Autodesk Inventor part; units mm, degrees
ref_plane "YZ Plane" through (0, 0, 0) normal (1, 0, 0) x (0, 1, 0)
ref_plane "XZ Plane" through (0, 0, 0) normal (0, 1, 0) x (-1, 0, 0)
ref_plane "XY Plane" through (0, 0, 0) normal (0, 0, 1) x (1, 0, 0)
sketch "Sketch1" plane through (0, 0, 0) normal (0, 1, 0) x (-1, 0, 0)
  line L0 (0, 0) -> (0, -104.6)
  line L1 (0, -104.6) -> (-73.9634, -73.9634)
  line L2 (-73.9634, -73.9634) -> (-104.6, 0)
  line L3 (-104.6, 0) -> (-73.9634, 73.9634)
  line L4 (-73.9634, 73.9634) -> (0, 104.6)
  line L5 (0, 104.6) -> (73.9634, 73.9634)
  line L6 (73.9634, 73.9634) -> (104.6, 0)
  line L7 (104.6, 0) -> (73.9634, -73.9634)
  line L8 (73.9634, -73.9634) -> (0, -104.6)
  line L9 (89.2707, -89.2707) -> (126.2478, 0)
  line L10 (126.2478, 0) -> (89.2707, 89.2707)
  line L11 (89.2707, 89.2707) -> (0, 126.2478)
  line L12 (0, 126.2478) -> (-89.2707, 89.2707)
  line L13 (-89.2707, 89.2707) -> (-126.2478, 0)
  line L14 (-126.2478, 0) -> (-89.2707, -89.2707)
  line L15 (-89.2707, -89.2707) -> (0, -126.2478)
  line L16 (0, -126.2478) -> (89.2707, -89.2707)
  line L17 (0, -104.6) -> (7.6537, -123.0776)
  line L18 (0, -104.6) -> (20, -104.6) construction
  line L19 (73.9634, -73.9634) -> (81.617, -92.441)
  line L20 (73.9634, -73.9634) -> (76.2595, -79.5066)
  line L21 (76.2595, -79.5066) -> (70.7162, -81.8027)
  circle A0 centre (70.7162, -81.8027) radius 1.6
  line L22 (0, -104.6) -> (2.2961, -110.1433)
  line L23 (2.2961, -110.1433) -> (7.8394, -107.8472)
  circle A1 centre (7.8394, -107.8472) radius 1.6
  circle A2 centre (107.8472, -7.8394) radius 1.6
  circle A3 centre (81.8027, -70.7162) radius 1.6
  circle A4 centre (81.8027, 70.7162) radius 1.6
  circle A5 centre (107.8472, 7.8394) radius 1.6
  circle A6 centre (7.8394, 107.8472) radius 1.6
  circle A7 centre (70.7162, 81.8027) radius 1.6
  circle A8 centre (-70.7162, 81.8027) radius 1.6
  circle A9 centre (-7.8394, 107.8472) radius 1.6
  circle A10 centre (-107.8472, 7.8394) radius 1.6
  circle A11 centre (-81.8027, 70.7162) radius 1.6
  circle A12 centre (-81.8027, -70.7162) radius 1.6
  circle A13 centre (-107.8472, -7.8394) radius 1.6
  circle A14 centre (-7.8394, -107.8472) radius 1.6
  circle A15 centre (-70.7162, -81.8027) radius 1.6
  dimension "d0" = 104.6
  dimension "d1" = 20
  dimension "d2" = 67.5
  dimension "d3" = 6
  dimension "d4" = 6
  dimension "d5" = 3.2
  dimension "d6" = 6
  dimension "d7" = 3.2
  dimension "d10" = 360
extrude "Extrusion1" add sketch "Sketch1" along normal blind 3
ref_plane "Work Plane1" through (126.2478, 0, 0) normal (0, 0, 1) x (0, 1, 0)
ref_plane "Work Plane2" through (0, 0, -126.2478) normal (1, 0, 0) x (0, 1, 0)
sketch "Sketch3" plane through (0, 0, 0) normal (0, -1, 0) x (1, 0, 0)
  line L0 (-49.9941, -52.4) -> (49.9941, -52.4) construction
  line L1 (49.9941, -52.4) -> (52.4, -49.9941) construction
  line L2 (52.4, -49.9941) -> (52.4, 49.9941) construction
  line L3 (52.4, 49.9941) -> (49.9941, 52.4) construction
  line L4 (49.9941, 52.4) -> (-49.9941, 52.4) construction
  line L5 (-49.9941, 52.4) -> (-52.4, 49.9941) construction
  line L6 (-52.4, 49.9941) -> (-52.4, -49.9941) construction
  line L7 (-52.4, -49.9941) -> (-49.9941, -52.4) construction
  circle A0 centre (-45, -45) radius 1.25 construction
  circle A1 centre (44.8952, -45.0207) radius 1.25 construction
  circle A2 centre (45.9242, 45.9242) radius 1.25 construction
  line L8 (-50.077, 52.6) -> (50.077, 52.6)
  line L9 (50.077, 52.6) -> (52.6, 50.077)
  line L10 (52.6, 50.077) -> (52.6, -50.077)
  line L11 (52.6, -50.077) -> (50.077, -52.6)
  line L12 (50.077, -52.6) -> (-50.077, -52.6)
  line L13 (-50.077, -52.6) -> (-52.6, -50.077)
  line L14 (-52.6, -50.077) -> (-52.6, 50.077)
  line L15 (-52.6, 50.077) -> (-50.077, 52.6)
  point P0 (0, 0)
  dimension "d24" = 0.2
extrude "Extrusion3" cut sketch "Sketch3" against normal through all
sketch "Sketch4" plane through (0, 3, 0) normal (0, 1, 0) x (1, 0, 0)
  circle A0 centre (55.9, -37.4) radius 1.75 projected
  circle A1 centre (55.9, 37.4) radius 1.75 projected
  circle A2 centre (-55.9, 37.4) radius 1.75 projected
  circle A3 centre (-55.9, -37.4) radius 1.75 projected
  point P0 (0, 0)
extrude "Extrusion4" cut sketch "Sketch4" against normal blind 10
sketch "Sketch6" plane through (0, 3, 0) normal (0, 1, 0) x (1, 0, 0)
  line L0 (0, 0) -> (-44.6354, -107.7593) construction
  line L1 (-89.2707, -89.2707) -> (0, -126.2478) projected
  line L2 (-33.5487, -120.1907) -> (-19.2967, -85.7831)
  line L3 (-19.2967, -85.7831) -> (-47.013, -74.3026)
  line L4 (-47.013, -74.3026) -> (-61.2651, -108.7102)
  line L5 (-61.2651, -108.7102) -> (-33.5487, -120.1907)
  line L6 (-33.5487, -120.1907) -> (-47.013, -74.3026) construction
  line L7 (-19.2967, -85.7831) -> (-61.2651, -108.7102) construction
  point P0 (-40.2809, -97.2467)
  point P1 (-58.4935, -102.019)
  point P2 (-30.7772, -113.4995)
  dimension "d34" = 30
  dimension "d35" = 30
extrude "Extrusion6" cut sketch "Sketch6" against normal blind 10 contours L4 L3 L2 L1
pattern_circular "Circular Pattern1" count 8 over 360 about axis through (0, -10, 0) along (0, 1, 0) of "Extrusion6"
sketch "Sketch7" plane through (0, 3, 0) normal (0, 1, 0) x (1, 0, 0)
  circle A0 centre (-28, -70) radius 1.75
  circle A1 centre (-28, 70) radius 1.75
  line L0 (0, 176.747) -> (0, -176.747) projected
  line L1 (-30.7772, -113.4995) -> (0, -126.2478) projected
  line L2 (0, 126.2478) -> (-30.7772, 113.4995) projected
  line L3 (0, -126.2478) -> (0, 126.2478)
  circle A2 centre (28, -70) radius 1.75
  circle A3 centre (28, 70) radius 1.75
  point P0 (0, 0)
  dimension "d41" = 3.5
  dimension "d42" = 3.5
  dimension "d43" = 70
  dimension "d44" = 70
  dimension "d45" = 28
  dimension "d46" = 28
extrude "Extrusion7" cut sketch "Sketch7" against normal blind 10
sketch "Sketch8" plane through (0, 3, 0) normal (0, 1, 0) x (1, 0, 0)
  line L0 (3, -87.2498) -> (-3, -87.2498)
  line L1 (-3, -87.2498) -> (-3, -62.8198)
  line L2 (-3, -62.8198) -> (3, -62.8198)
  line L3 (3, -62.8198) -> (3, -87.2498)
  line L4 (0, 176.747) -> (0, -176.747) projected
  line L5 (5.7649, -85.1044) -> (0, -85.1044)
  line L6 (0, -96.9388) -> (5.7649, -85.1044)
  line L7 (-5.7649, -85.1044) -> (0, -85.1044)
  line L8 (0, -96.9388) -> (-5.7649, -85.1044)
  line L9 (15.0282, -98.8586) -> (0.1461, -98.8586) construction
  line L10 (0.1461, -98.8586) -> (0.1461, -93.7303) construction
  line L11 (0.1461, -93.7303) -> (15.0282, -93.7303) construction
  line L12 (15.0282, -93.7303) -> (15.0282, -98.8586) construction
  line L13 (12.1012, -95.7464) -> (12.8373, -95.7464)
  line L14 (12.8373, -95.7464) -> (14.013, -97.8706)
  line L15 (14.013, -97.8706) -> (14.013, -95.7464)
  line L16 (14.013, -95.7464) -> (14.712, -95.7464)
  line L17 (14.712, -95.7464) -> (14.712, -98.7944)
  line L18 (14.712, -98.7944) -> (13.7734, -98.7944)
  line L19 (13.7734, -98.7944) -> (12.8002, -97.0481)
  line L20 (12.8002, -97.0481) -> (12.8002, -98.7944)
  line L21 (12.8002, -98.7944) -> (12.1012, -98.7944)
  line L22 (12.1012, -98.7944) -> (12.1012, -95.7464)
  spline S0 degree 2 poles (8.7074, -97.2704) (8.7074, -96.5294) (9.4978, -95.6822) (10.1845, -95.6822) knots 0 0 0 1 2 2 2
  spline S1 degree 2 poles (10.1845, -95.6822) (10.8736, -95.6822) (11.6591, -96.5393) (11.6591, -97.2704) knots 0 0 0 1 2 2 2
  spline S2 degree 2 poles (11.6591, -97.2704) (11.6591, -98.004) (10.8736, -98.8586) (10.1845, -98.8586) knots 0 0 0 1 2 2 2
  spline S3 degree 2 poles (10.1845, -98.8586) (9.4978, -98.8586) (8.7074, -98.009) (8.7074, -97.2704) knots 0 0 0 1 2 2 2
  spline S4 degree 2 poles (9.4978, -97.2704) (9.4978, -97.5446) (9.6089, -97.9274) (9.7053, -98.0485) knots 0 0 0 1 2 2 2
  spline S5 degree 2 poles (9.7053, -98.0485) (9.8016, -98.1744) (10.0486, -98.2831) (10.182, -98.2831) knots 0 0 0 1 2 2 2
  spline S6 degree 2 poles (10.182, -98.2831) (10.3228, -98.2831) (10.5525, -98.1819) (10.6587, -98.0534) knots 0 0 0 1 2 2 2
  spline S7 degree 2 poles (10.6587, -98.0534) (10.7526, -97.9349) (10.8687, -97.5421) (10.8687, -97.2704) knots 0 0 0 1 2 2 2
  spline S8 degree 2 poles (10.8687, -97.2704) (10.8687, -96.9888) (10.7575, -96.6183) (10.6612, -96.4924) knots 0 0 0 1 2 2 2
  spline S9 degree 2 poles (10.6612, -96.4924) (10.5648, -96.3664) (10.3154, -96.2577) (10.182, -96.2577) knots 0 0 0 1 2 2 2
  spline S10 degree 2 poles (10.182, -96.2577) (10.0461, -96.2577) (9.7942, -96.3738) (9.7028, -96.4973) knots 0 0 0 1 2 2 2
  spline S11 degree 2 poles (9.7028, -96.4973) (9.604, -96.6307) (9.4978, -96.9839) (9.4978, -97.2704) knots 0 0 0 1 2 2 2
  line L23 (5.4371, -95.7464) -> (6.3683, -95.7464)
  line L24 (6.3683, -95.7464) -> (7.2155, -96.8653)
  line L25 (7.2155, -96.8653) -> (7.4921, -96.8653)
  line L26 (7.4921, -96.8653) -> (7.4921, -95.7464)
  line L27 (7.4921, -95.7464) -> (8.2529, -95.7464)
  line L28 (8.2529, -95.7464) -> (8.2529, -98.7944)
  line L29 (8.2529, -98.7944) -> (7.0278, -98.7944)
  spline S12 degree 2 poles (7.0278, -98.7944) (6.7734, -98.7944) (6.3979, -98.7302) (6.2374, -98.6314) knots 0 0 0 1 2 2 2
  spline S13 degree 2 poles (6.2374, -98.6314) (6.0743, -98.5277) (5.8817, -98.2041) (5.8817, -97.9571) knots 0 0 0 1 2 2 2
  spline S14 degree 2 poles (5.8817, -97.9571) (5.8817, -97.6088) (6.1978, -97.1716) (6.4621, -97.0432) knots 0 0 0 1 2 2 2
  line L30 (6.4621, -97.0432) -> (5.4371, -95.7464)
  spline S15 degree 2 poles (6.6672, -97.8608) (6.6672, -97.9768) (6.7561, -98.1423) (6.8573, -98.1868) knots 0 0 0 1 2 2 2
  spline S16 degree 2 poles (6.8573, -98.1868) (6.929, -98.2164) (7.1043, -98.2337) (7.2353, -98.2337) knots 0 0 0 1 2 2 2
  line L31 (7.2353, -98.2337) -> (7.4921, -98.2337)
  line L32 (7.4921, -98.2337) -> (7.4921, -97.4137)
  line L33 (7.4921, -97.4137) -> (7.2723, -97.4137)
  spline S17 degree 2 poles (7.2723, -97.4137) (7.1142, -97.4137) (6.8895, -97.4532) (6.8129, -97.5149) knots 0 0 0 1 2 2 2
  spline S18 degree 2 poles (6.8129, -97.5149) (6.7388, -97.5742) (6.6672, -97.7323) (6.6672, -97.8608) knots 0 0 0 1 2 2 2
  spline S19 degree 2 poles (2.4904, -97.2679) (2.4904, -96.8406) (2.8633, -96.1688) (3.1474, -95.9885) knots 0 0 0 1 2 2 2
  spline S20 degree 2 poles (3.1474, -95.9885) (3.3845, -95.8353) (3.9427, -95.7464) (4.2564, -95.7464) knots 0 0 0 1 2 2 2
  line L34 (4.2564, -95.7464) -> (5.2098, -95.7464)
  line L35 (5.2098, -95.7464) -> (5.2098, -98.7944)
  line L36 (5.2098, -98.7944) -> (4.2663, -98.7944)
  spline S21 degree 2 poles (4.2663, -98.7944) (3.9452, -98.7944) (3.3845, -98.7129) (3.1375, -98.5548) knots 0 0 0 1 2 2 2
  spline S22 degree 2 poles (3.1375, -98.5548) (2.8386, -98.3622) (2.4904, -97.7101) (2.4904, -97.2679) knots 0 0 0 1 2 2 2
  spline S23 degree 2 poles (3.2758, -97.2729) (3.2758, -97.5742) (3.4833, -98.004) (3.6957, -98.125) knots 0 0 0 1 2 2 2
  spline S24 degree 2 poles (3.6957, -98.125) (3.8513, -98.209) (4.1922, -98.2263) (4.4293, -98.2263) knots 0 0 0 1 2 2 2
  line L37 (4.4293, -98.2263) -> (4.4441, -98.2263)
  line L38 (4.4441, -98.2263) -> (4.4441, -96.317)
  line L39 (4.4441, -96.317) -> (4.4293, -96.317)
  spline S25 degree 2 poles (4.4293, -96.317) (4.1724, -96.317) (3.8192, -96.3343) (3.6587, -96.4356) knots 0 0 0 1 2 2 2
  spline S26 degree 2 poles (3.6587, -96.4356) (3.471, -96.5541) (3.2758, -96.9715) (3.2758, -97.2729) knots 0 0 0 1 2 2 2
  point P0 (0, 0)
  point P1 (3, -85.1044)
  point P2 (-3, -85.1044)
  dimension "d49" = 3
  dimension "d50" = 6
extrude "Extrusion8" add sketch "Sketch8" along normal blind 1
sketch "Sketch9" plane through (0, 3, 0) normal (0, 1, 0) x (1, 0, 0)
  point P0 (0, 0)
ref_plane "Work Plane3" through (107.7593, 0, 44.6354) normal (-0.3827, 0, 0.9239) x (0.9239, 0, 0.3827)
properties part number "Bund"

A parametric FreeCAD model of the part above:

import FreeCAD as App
import Part
import Sketcher
Q = App.Units.Quantity

doc = App.newDocument("Part")
body = doc.addObject("PartDesign::Body", "Body")

sketch1 = body.newObject("Sketcher::SketchObject", "Sketch")
sketch1.AttachmentSupport = (doc.getObject("XZ_Plane"), [""])
sketch1.MapMode = "FlatFace"
sketch1.addGeometry([
    Part.LineSegment(App.Vector(0, -126.2, 0), App.Vector(-89.3, -89.3, 0)),
    Part.LineSegment(App.Vector(-89.3, -89.3, 0), App.Vector(-126.2, 0, 0)),
    Part.LineSegment(App.Vector(-126.2, 0, 0), App.Vector(-89.3, 89.3, 0)),
    Part.LineSegment(App.Vector(-89.3, 89.3, 0), App.Vector(0, 126.2, 0)),
    Part.LineSegment(App.Vector(0, 126.2, 0), App.Vector(89.3, 89.3, 0)),
    Part.LineSegment(App.Vector(89.3, 89.3, 0), App.Vector(126.2, 0, 0)),
    Part.LineSegment(App.Vector(126.2, 0, 0), App.Vector(89.3, -89.3, 0)),
    Part.LineSegment(App.Vector(89.3, -89.3, 0), App.Vector(0, -126.2, 0)),
    Part.Circle(App.Vector(70.7, -81.8, 0), App.Vector(0, 0, 1), 1.6),
    Part.Circle(App.Vector(81.8, -70.7, 0), App.Vector(0, 0, 1), 1.6),
    Part.Circle(App.Vector(7.8, -107.8, 0), App.Vector(0, 0, 1), 1.6),
    Part.Circle(App.Vector(107.8, -7.8, 0), App.Vector(0, 0, 1), 1.6),
    Part.Circle(App.Vector(-81.8, -70.7, 0), App.Vector(0, 0, 1), 1.6),
    Part.Circle(App.Vector(-107.8, -7.8, 0), App.Vector(0, 0, 1), 1.6),
    Part.Circle(App.Vector(107.8, 7.8, 0), App.Vector(0, 0, 1), 1.6),
    Part.Circle(App.Vector(81.8, 70.7, 0), App.Vector(0, 0, 1), 1.6),
    Part.Circle(App.Vector(70.7, 81.8, 0), App.Vector(0, 0, 1), 1.6),
    Part.Circle(App.Vector(7.8, 107.8, 0), App.Vector(0, 0, 1), 1.6),
    Part.Circle(App.Vector(-107.8, 7.8, 0), App.Vector(0, 0, 1), 1.6),
    Part.Circle(App.Vector(-7.8, 107.8, 0), App.Vector(0, 0, 1), 1.6),
    Part.Circle(App.Vector(-81.8, 70.7, 0), App.Vector(0, 0, 1), 1.6),
    Part.Circle(App.Vector(-70.7, 81.8, 0), App.Vector(0, 0, 1), 1.6),
    Part.Circle(App.Vector(-70.7, -81.8, 0), App.Vector(0, 0, 1), 1.6),
    Part.Circle(App.Vector(-7.8, -107.8, 0), App.Vector(0, 0, 1), 1.6),
], False)
sketch1.addConstraint([
    Sketcher.Constraint("Coincident", 0, 2, 1, 1),
    Sketcher.Constraint("Coincident", 1, 2, 2, 1),
    Sketcher.Constraint("Coincident", 2, 2, 3, 1),
    Sketcher.Constraint("Coincident", 3, 2, 4, 1),
    Sketcher.Constraint("Coincident", 4, 2, 5, 1),
    Sketcher.Constraint("Coincident", 5, 2, 6, 1),
    Sketcher.Constraint("Coincident", 6, 2, 7, 1),
    Sketcher.Constraint("Coincident", 7, 2, 0, 1),
    Sketcher.Constraint("Equal", 8, 9),
    Sketcher.Constraint("Equal", 9, 10),
    Sketcher.Constraint("Equal", 10, 11),
    Sketcher.Constraint("Equal", 11, 12),
    Sketcher.Constraint("Equal", 12, 13),
    Sketcher.Constraint("Equal", 13, 14),
    Sketcher.Constraint("Equal", 14, 15),
    Sketcher.Constraint("Equal", 15, 16),
    Sketcher.Constraint("Equal", 16, 17),
    Sketcher.Constraint("Equal", 17, 18),
    Sketcher.Constraint("Equal", 18, 19),
    Sketcher.Constraint("Equal", 19, 20),
    Sketcher.Constraint("Equal", 20, 21),
    Sketcher.Constraint("Equal", 21, 22),
    Sketcher.Constraint("Equal", 22, 23),
    Sketcher.Constraint("Symmetric", 13, 3, 14, 3, -1, 1),
    Sketcher.Constraint("Symmetric", 12, 3, 15, 3, -1, 1),
    Sketcher.Constraint("Symmetric", 11, 3, 18, 3, -1, 1),
    Sketcher.Constraint("Symmetric", 10, 3, 19, 3, -1, 1),
    Sketcher.Constraint("Symmetric", 9, 3, 20, 3, -1, 1),
    Sketcher.Constraint("Symmetric", 8, 3, 21, 3, -1, 1),
    Sketcher.Constraint("Symmetric", 16, 3, 22, 3, -1, 1),
    Sketcher.Constraint("Symmetric", 17, 3, 23, 3, -1, 1),
    Sketcher.Constraint("Symmetric", 0, 2, 4, 2, -1, 1),
    Sketcher.Constraint("Symmetric", 1, 2, 5, 2, -1, 1),
    Sketcher.Constraint("Symmetric", 2, 2, 6, 2, -1, 1),
    Sketcher.Constraint("Symmetric", 3, 2, 7, 2, -1, 1),
    Sketcher.Constraint("Symmetric", 9, 3, 12, 3, -2),
    Sketcher.Constraint("Symmetric", 11, 3, 13, 3, -2),
    Sketcher.Constraint("Symmetric", 17, 3, 19, 3, -2),
    Sketcher.Constraint("Symmetric", 16, 3, 21, 3, -2),
    Sketcher.Constraint("Symmetric", 2, 2, 4, 2, -2),
    Sketcher.Constraint("PointOnObject", 1, 2, -1),
    Sketcher.Constraint("PointOnObject", 3, 2, -2),
    Sketcher.Constraint("Perpendicular", 0, 2),
    Sketcher.Constraint("Equal", 0, 1),
    Sketcher.Constraint("Diameter", 8, 3.2),
    Sketcher.Constraint("Angle", 2, Q("67.5 deg")),
    Sketcher.Constraint("DistanceX", 12, 3, 11, 3, 189.65),
    Sketcher.Constraint("DistanceX", 0, 2, 10, 3, 97.11),
    Sketcher.Constraint("Distance", 0, 96.626),
    Sketcher.Constraint("DistanceY", 10, 3, 9, 3, 37.131),
    Sketcher.Constraint("DistanceX", 8, 3, 11, 3, 37.131),
    Sketcher.Constraint("DistanceX", 12, 3, 10, 3, 89.642),
    Sketcher.Constraint("DistanceY", 8, 3, 14, 3, 89.642),
    Sketcher.Constraint("DistanceY", 8, 3, 15, 3, 152.519),
    Sketcher.Constraint("DistanceY", 0, 2, 22, 3, 7.468),
])
pad1 = body.newObject("PartDesign::Pad", "Pad")
pad1.Profile = sketch1
pad1.Length = 3
pad1.Reversed = True

sketch2 = body.newObject("Sketcher::SketchObject", "Sketch001")
sketch2.AttachmentSupport = (doc.getObject("XZ_Plane"), [""])
sketch2.MapMode = "FlatFace"
sketch2.addGeometry([
    Part.LineSegment(App.Vector(50.1, 52.6, 0), App.Vector(-50.1, 52.6, 0)),
    Part.LineSegment(App.Vector(-50.1, 52.6, 0), App.Vector(-52.6, 50.1, 0)),
    Part.LineSegment(App.Vector(-52.6, 50.1, 0), App.Vector(-52.6, -50.1, 0)),
    Part.LineSegment(App.Vector(-52.6, -50.1, 0), App.Vector(-50.1, -52.6, 0)),
    Part.LineSegment(App.Vector(-50.1, -52.6, 0), App.Vector(50.1, -52.6, 0)),
    Part.LineSegment(App.Vector(50.1, -52.6, 0), App.Vector(52.6, -50.1, 0)),
    Part.LineSegment(App.Vector(52.6, -50.1, 0), App.Vector(52.6, 50.1, 0)),
    Part.LineSegment(App.Vector(52.6, 50.1, 0), App.Vector(50.1, 52.6, 0)),
], False)
sketch2.addConstraint([
    Sketcher.Constraint("Coincident", 0, 2, 1, 1),
    Sketcher.Constraint("Coincident", 1, 2, 2, 1),
    Sketcher.Constraint("Coincident", 2, 2, 3, 1),
    Sketcher.Constraint("Coincident", 3, 2, 4, 1),
    Sketcher.Constraint("Coincident", 4, 2, 5, 1),
    Sketcher.Constraint("Coincident", 5, 2, 6, 1),
    Sketcher.Constraint("Coincident", 6, 2, 7, 1),
    Sketcher.Constraint("Coincident", 7, 2, 0, 1),
    Sketcher.Constraint("Horizontal", 0),
    Sketcher.Constraint("Vertical", 2),
    Sketcher.Constraint("Horizontal", 4),
    Sketcher.Constraint("Vertical", 6),
    Sketcher.Constraint("Symmetric", 0, 2, 4, 2, -1, 1),
    Sketcher.Constraint("Symmetric", 1, 2, 5, 2, -1, 1),
    Sketcher.Constraint("Perpendicular", 1, 3),
    Sketcher.Constraint("Perpendicular", 5, 7),
    Sketcher.Constraint("Horizontal", 2, 2, 5, 2),
    Sketcher.Constraint("Horizontal", 1, 2, 6, 2),
    Sketcher.Constraint("Vertical", 0, 2, 3, 2),
    Sketcher.Constraint("Equal", 4, 2),
    Sketcher.Constraint("DistanceY", -1, 1, 0, 2, 52.6),
    Sketcher.Constraint("DistanceX", 0, 2, 0, 1, 100.154),
])
pocket1 = body.newObject("PartDesign::Pocket", "Pocket")
pocket1.Profile = sketch2
pocket1.Type = "ThroughAll"

sketch3 = body.newObject("Sketcher::SketchObject", "Sketch002")
sketch3.AttachmentSupport = (doc.getObject("XZ_Plane"), [""])
sketch3.MapMode = "FlatFace"
sketch3.AttachmentOffset = App.Placement(App.Vector(0, 0, -3), App.Rotation())
sketch3.addGeometry([
    Part.Circle(App.Vector(55.9, 37.4, 0), App.Vector(0, 0, 1), 1.8),
    Part.Circle(App.Vector(55.9, -37.4, 0), App.Vector(0, 0, 1), 1.8),
    Part.Circle(App.Vector(-55.9, -37.4, 0), App.Vector(0, 0, 1), 1.8),
    Part.Circle(App.Vector(-55.9, 37.4, 0), App.Vector(0, 0, 1), 1.8),
], False)
sketch3.addConstraint([
    Sketcher.Constraint("Equal", 0, 1),
    Sketcher.Constraint("Equal", 1, 2),
    Sketcher.Constraint("Equal", 2, 3),
    Sketcher.Constraint("Symmetric", 0, 3, 2, 3, -1, 1),
    Sketcher.Constraint("Symmetric", 1, 3, 3, 3, -1, 1),
    Sketcher.Constraint("Symmetric", 1, 3, 2, 3, -2),
    Sketcher.Constraint("Diameter", 0, 3.5),
    Sketcher.Constraint("DistanceX", -1, 1, 0, 3, 55.9),
    Sketcher.Constraint("DistanceY", -1, 1, 0, 3, 37.4),
])
pocket2 = body.newObject("PartDesign::Pocket", "Pocket001")
pocket2.Profile = sketch3
pocket2.Length = 10
pocket2.Reversed = True

sketch4 = body.newObject("Sketcher::SketchObject", "Sketch003")
sketch4.AttachmentSupport = (doc.getObject("XZ_Plane"), [""])
sketch4.MapMode = "FlatFace"
sketch4.AttachmentOffset = App.Placement(App.Vector(0, 0, -3), App.Rotation())
sketch4.addGeometry([
    Part.LineSegment(App.Vector(-47, 74, 0), App.Vector(-58, 102, 0)),
    Part.LineSegment(App.Vector(-58, 102, 0), App.Vector(-31, 113, 0)),
    Part.LineSegment(App.Vector(-31, 113, 0), App.Vector(-19, 86, 0)),
    Part.LineSegment(App.Vector(-19, 86, 0), App.Vector(-47, 74, 0)),
], False)
sketch4.addConstraint([
    Sketcher.Constraint("Coincident", 0, 2, 1, 1),
    Sketcher.Constraint("Coincident", 1, 2, 2, 1),
    Sketcher.Constraint("Coincident", 2, 2, 3, 1),
    Sketcher.Constraint("Coincident", 3, 2, 0, 1),
    Sketcher.Constraint("Perpendicular", 0, 1),
    Sketcher.Constraint("Perpendicular", 1, 2),
    Sketcher.Constraint("Perpendicular", 2, 3),
    Sketcher.Constraint("Equal", 0, 1),
    Sketcher.Constraint("Distance", 0, 30.0),
    Sketcher.Constraint("Angle", 0, Q("112.5 deg")),
    Sketcher.Constraint("DistanceY", -1, 1, 0, 2, 102.019),
    Sketcher.Constraint("DistanceX", 3, 2, -1, 1, 47.013),
])
pocket3 = body.newObject("PartDesign::Pocket", "Pocket002")
pocket3.Profile = sketch4
pocket3.Length = 10
pocket3.Reversed = True
doc.recompute()

polarpattern = body.newObject("PartDesign::PolarPattern", "PolarPattern")
polarpattern.Originals = [pocket3]
polarpattern.Axis = (doc.getObject("Y_Axis"), [""])
polarpattern.Angle = 360
polarpattern.Occurrences = 8
body.Tip = polarpattern

sketch5 = body.newObject("Sketcher::SketchObject", "Sketch004")
sketch5.AttachmentSupport = (doc.getObject("XZ_Plane"), [""])
sketch5.MapMode = "FlatFace"
sketch5.AttachmentOffset = App.Placement(App.Vector(0, 0, -3), App.Rotation())
sketch5.addGeometry([
    Part.Circle(App.Vector(-28, 70, 0), App.Vector(0, 0, 1), 1.8),
    Part.Circle(App.Vector(-28, -70, 0), App.Vector(0, 0, 1), 1.8),
    Part.Circle(App.Vector(28, 70, 0), App.Vector(0, 0, 1), 1.8),
    Part.Circle(App.Vector(28, -70, 0), App.Vector(0, 0, 1), 1.8),
], False)
sketch5.addConstraint([
    Sketcher.Constraint("Equal", 0, 1),
    Sketcher.Constraint("Equal", 1, 2),
    Sketcher.Constraint("Equal", 2, 3),
    Sketcher.Constraint("Symmetric", 1, 3, 2, 3, -1, 1),
    Sketcher.Constraint("Symmetric", 0, 3, 3, 3, -1, 1),
    Sketcher.Constraint("Symmetric", 0, 3, 2, 3, -2),
    Sketcher.Constraint("Diameter", 0, 3.5),
    Sketcher.Constraint("DistanceX", 0, 3, -1, 1, 28.0),
    Sketcher.Constraint("DistanceY", -1, 1, 0, 3, 70.0),
])
pocket4 = body.newObject("PartDesign::Pocket", "Pocket003")
pocket4.Profile = sketch5
pocket4.Length = 10
pocket4.Reversed = True

sketch6 = body.newObject("Sketcher::SketchObject", "Sketch005")
sketch6.AttachmentSupport = (doc.getObject("XZ_Plane"), [""])
sketch6.MapMode = "FlatFace"
sketch6.AttachmentOffset = App.Placement(App.Vector(0, 0, -3), App.Rotation())
sketch6.addGeometry([
    Part.LineSegment(App.Vector(5.7649, 85.1044, 0), App.Vector(3, 85.1044, 0)),
    Part.LineSegment(App.Vector(3, 85.1044, 0), App.Vector(3, 62.8198, 0)),
    Part.LineSegment(App.Vector(3, 62.8198, 0), App.Vector(-3, 62.8198, 0)),
    Part.LineSegment(App.Vector(-3, 62.8198, 0), App.Vector(-3, 85.1044, 0)),
    Part.LineSegment(App.Vector(-3, 85.1044, 0), App.Vector(-5.7649, 85.1044, 0)),
    Part.LineSegment(App.Vector(-5.7649, 85.1044, 0), App.Vector(0, 96.9388, 0)),
    Part.LineSegment(App.Vector(0, 96.9388, 0), App.Vector(5.7649, 85.1044, 0)),
    Part.LineSegment(App.Vector(12.8373, 95.7464, 0), App.Vector(12.1012, 95.7464, 0)),
    Part.LineSegment(App.Vector(12.1012, 95.7464, 0), App.Vector(12.1012, 98.7944, 0)),
    Part.LineSegment(App.Vector(12.1012, 98.7944, 0), App.Vector(12.8002, 98.7944, 0)),
    Part.LineSegment(App.Vector(12.8002, 98.7944, 0), App.Vector(12.8002, 97.0481, 0)),
    Part.LineSegment(App.Vector(12.8002, 97.0481, 0), App.Vector(13.7734, 98.7944, 0)),
    Part.LineSegment(App.Vector(13.7734, 98.7944, 0), App.Vector(14.712, 98.7944, 0)),
    Part.LineSegment(App.Vector(14.712, 98.7944, 0), App.Vector(14.712, 95.7464, 0)),
    Part.LineSegment(App.Vector(14.712, 95.7464, 0), App.Vector(14.013, 95.7464, 0)),
    Part.LineSegment(App.Vector(14.013, 95.7464, 0), App.Vector(14.013, 97.8706, 0)),
    Part.LineSegment(App.Vector(14.013, 97.8706, 0), App.Vector(12.8373, 95.7464, 0)),
    Part.BSplineCurve([App.Vector(8.7074, 97.2704, 0), App.Vector(8.7074, 96.5294, 0), App.Vector(9.4978, 95.6822, 0), App.Vector(10.1845, 95.6822, 0)], [3, 1, 3], [0, 1, 2], False, 2, [1, 1, 1, 1], False),
    Part.BSplineCurve([App.Vector(10.1845, 98.8586, 0), App.Vector(9.4978, 98.8586, 0), App.Vector(8.7074, 98.009, 0), App.Vector(8.7074, 97.2704, 0)], [3, 1, 3], [0, 1, 2], False, 2, [1, 1, 1, 1], False),
    Part.BSplineCurve([App.Vector(11.6591, 97.2704, 0), App.Vector(11.6591, 98.004, 0), App.Vector(10.8736, 98.8586, 0), App.Vector(10.1845, 98.8586, 0)], [3, 1, 3], [0, 1, 2], False, 2, [1, 1, 1, 1], False),
    Part.BSplineCurve([App.Vector(10.1845, 95.6822, 0), App.Vector(10.8736, 95.6822, 0), App.Vector(11.6591, 96.5393, 0), App.Vector(11.6591, 97.2704, 0)], [3, 1, 3], [0, 1, 2], False, 2, [1, 1, 1, 1], False),
    Part.BSplineCurve([App.Vector(9.4978, 97.2704, 0), App.Vector(9.4978, 97.5446, 0), App.Vector(9.6089, 97.9274, 0), App.Vector(9.7053, 98.0485, 0)], [3, 1, 3], [0, 1, 2], False, 2, [1, 1, 1, 1], False),
    Part.BSplineCurve([App.Vector(9.7028, 96.4973, 0), App.Vector(9.604, 96.6307, 0), App.Vector(9.4978, 96.9839, 0), App.Vector(9.4978, 97.2704, 0)], [3, 1, 3], [0, 1, 2], False, 2, [1, 1, 1, 1], False),
    Part.BSplineCurve([App.Vector(10.182, 96.2577, 0), App.Vector(10.0461, 96.2577, 0), App.Vector(9.7942, 96.3738, 0), App.Vector(9.7028, 96.4973, 0)], [3, 1, 3], [0, 1, 2], False, 2, [1, 1, 1, 1], False),
    Part.BSplineCurve([App.Vector(10.6612, 96.4924, 0), App.Vector(10.5648, 96.3664, 0), App.Vector(10.3154, 96.2577, 0), App.Vector(10.182, 96.2577, 0)], [3, 1, 3], [0, 1, 2], False, 2, [1, 1, 1, 1], False),
    Part.BSplineCurve([App.Vector(10.8687, 97.2704, 0), App.Vector(10.8687, 96.9888, 0), App.Vector(10.7575, 96.6183, 0), App.Vector(10.6612, 96.4924, 0)], [3, 1, 3], [0, 1, 2], False, 2, [1, 1, 1, 1], False),
    Part.BSplineCurve([App.Vector(10.6587, 98.0534, 0), App.Vector(10.7526, 97.9349, 0), App.Vector(10.8687, 97.5421, 0), App.Vector(10.8687, 97.2704, 0)], [3, 1, 3], [0, 1, 2], False, 2, [1, 1, 1, 1], False),
    Part.BSplineCurve([App.Vector(10.182, 98.2831, 0), App.Vector(10.3228, 98.2831, 0), App.Vector(10.5525, 98.1819, 0), App.Vector(10.6587, 98.0534, 0)], [3, 1, 3], [0, 1, 2], False, 2, [1, 1, 1, 1], False),
    Part.BSplineCurve([App.Vector(9.7053, 98.0485, 0), App.Vector(9.8016, 98.1744, 0), App.Vector(10.0486, 98.2831, 0), App.Vector(10.182, 98.2831, 0)], [3, 1, 3], [0, 1, 2], False, 2, [1, 1, 1, 1], False),
    Part.LineSegment(App.Vector(6.3683, 95.7464, 0), App.Vector(5.4371, 95.7464, 0)),
    Part.LineSegment(App.Vector(5.4371, 95.7464, 0), App.Vector(6.4621, 97.0432, 0)),
    Part.BSplineCurve([App.Vector(5.8817, 97.9571, 0), App.Vector(5.8817, 97.6088, 0), App.Vector(6.1978, 97.1716, 0), App.Vector(6.4621, 97.0432, 0)], [3, 1, 3], [0, 1, 2], False, 2, [1, 1, 1, 1], False),
    Part.BSplineCurve([App.Vector(6.2374, 98.6314, 0), App.Vector(6.0743, 98.5277, 0), App.Vector(5.8817, 98.2041, 0), App.Vector(5.8817, 97.9571, 0)], [3, 1, 3], [0, 1, 2], False, 2, [1, 1, 1, 1], False),
    Part.BSplineCurve([App.Vector(7.0278, 98.7944, 0), App.Vector(6.7734, 98.7944, 0), App.Vector(6.3979, 98.7302, 0), App.Vector(6.2374, 98.6314, 0)], [3, 1, 3], [0, 1, 2], False, 2, [1, 1, 1, 1], False),
    Part.LineSegment(App.Vector(7.0278, 98.7944, 0), App.Vector(8.2529, 98.7944, 0)),
    Part.LineSegment(App.Vector(8.2529, 98.7944, 0), App.Vector(8.2529, 95.7464, 0)),
    Part.LineSegment(App.Vector(8.2529, 95.7464, 0), App.Vector(7.4921, 95.7464, 0)),
    Part.LineSegment(App.Vector(7.4921, 95.7464, 0), App.Vector(7.4921, 96.8653, 0)),
    Part.LineSegment(App.Vector(7.4921, 96.8653, 0), App.Vector(7.2155, 96.8653, 0)),
    Part.LineSegment(App.Vector(7.2155, 96.8653, 0), App.Vector(6.3683, 95.7464, 0)),
    Part.BSplineCurve([App.Vector(6.6672, 97.8608, 0), App.Vector(6.6672, 97.9768, 0), App.Vector(6.7561, 98.1423, 0), App.Vector(6.8573, 98.1868, 0)], [3, 1, 3], [0, 1, 2], False, 2, [1, 1, 1, 1], False),
    Part.BSplineCurve([App.Vector(6.8129, 97.5149, 0), App.Vector(6.7388, 97.5742, 0), App.Vector(6.6672, 97.7323, 0), App.Vector(6.6672, 97.8608, 0)], [3, 1, 3], [0, 1, 2], False, 2, [1, 1, 1, 1], False),
    Part.BSplineCurve([App.Vector(7.2723, 97.4137, 0), App.Vector(7.1142, 97.4137, 0), App.Vector(6.8895, 97.4532, 0), App.Vector(6.8129, 97.5149, 0)], [3, 1, 3], [0, 1, 2], False, 2, [1, 1, 1, 1], False),
    Part.LineSegment(App.Vector(7.2723, 97.4137, 0), App.Vector(7.4921, 97.4137, 0)),
    Part.LineSegment(App.Vector(7.4921, 97.4137, 0), App.Vector(7.4921, 98.2337, 0)),
    Part.LineSegment(App.Vector(7.4921, 98.2337, 0), App.Vector(7.2353, 98.2337, 0)),
    Part.BSplineCurve([App.Vector(6.8573, 98.1868, 0), App.Vector(6.929, 98.2164, 0), App.Vector(7.1043, 98.2337, 0), App.Vector(7.2353, 98.2337, 0)], [3, 1, 3], [0, 1, 2], False, 2, [1, 1, 1, 1], False),
    Part.BSplineCurve([App.Vector(2.4904, 97.2679, 0), App.Vector(2.4904, 96.8406, 0), App.Vector(2.8633, 96.1688, 0), App.Vector(3.1474, 95.9885, 0)], [3, 1, 3], [0, 1, 2], False, 2, [1, 1, 1, 1], False),
    Part.BSplineCurve([App.Vector(3.1375, 98.5548, 0), App.Vector(2.8386, 98.3622, 0), App.Vector(2.4904, 97.7101, 0), App.Vector(2.4904, 97.2679, 0)], [3, 1, 3], [0, 1, 2], False, 2, [1, 1, 1, 1], False),
    Part.BSplineCurve([App.Vector(4.2663, 98.7944, 0), App.Vector(3.9452, 98.7944, 0), App.Vector(3.3845, 98.7129, 0), App.Vector(3.1375, 98.5548, 0)], [3, 1, 3], [0, 1, 2], False, 2, [1, 1, 1, 1], False),
    Part.LineSegment(App.Vector(4.2663, 98.7944, 0), App.Vector(5.2098, 98.7944, 0)),
    Part.LineSegment(App.Vector(5.2098, 98.7944, 0), App.Vector(5.2098, 95.7464, 0)),
    Part.LineSegment(App.Vector(5.2098, 95.7464, 0), App.Vector(4.2564, 95.7464, 0)),
    Part.BSplineCurve([App.Vector(3.1474, 95.9885, 0), App.Vector(3.3845, 95.8353, 0), App.Vector(3.9427, 95.7464, 0), App.Vector(4.2564, 95.7464, 0)], [3, 1, 3], [0, 1, 2], False, 2, [1, 1, 1, 1], False),
    Part.BSplineCurve([App.Vector(3.2758, 97.2729, 0), App.Vector(3.2758, 97.5742, 0), App.Vector(3.4833, 98.004, 0), App.Vector(3.6957, 98.125, 0)], [3, 1, 3], [0, 1, 2], False, 2, [1, 1, 1, 1], False),
    Part.BSplineCurve([App.Vector(3.6587, 96.4356, 0), App.Vector(3.471, 96.5541, 0), App.Vector(3.2758, 96.9715, 0), App.Vector(3.2758, 97.2729, 0)], [3, 1, 3], [0, 1, 2], False, 2, [1, 1, 1, 1], False),
    Part.BSplineCurve([App.Vector(4.4293, 96.317, 0), App.Vector(4.1724, 96.317, 0), App.Vector(3.8192, 96.3343, 0), App.Vector(3.6587, 96.4356, 0)], [3, 1, 3], [0, 1, 2], False, 2, [1, 1, 1, 1], False),
    Part.LineSegment(App.Vector(4.4293, 96.317, 0), App.Vector(4.4441, 96.317, 0)),
    Part.LineSegment(App.Vector(4.4441, 96.317, 0), App.Vector(4.4441, 98.2263, 0)),
    Part.LineSegment(App.Vector(4.4441, 98.2263, 0), App.Vector(4.4293, 98.2263, 0)),
    Part.BSplineCurve([App.Vector(3.6957, 98.125, 0), App.Vector(3.8513, 98.209, 0), App.Vector(4.1922, 98.2263, 0), App.Vector(4.4293, 98.2263, 0)], [3, 1, 3], [0, 1, 2], False, 2, [1, 1, 1, 1], False),
], False)
sketch6.addConstraint([
    Sketcher.Constraint("Block", 17),
    Sketcher.Constraint("Block", 18),
    Sketcher.Constraint("Block", 19),
    Sketcher.Constraint("Block", 20),
    Sketcher.Constraint("Block", 21),
    Sketcher.Constraint("Block", 22),
    Sketcher.Constraint("Block", 23),
    Sketcher.Constraint("Block", 24),
    Sketcher.Constraint("Block", 25),
    Sketcher.Constraint("Block", 26),
    Sketcher.Constraint("Block", 27),
    Sketcher.Constraint("Block", 28),
    Sketcher.Constraint("Block", 31),
    Sketcher.Constraint("Block", 32),
    Sketcher.Constraint("Block", 33),
    Sketcher.Constraint("Block", 40),
    Sketcher.Constraint("Block", 41),
    Sketcher.Constraint("Block", 42),
    Sketcher.Constraint("Block", 46),
    Sketcher.Constraint("Block", 47),
    Sketcher.Constraint("Block", 48),
    Sketcher.Constraint("Block", 49),
    Sketcher.Constraint("Block", 53),
    Sketcher.Constraint("Block", 54),
    Sketcher.Constraint("Block", 55),
    Sketcher.Constraint("Block", 56),
    Sketcher.Constraint("Block", 60),
    Sketcher.Constraint("Coincident", 0, 2, 1, 1),
    Sketcher.Constraint("Coincident", 1, 2, 2, 1),
    Sketcher.Constraint("Coincident", 2, 2, 3, 1),
    Sketcher.Constraint("Coincident", 3, 2, 4, 1),
    Sketcher.Constraint("Coincident", 4, 2, 5, 1),
    Sketcher.Constraint("Coincident", 5, 2, 6, 1),
    Sketcher.Constraint("Coincident", 6, 2, 0, 1),
    Sketcher.Constraint("Coincident", 7, 2, 8, 1),
    Sketcher.Constraint("Coincident", 8, 2, 9, 1),
    Sketcher.Constraint("Coincident", 9, 2, 10, 1),
    Sketcher.Constraint("Coincident", 10, 2, 11, 1),
    Sketcher.Constraint("Coincident", 11, 2, 12, 1),
    Sketcher.Constraint("Coincident", 12, 2, 13, 1),
    Sketcher.Constraint("Coincident", 13, 2, 14, 1),
    Sketcher.Constraint("Coincident", 14, 2, 15, 1),
    Sketcher.Constraint("Coincident", 15, 2, 16, 1),
    Sketcher.Constraint("Coincident", 16, 2, 7, 1),
    Sketcher.Constraint("Coincident", 29, 2, 30, 1),
    Sketcher.Constraint("Coincident", 30, 2, 31, 2),
    Sketcher.Constraint("Coincident", 33, 1, 34, 1),
    Sketcher.Constraint("Coincident", 34, 2, 35, 1),
    Sketcher.Constraint("Coincident", 35, 2, 36, 1),
    Sketcher.Constraint("Coincident", 36, 2, 37, 1),
    Sketcher.Constraint("Coincident", 37, 2, 38, 1),
    Sketcher.Constraint("Coincident", 38, 2, 39, 1),
    Sketcher.Constraint("Coincident", 39, 2, 29, 1),
    Sketcher.Constraint("Coincident", 42, 1, 43, 1),
    Sketcher.Constraint("Coincident", 43, 2, 44, 1),
    Sketcher.Constraint("Coincident", 44, 2, 45, 1),
    Sketcher.Constraint("Coincident", 45, 2, 46, 2),
    Sketcher.Constraint("Coincident", 49, 1, 50, 1),
    Sketcher.Constraint("Coincident", 50, 2, 51, 1),
    Sketcher.Constraint("Coincident", 51, 2, 52, 1),
    Sketcher.Constraint("Coincident", 52, 2, 53, 2),
    Sketcher.Constraint("Coincident", 56, 1, 57, 1),
    Sketcher.Constraint("Coincident", 57, 2, 58, 1),
    Sketcher.Constraint("Coincident", 58, 2, 59, 1),
    Sketcher.Constraint("Coincident", 59, 2, 60, 2),
    Sketcher.Constraint("Horizontal", 0),
    Sketcher.Constraint("Vertical", 1),
    Sketcher.Constraint("Horizontal", 2),
    Sketcher.Constraint("Vertical", 3),
    Sketcher.Constraint("Horizontal", 4),
    Sketcher.Constraint("Horizontal", 7),
    Sketcher.Constraint("Vertical", 8),
    Sketcher.Constraint("Horizontal", 9),
    Sketcher.Constraint("Vertical", 10),
    Sketcher.Constraint("Horizontal", 12),
    Sketcher.Constraint("Vertical", 13),
    Sketcher.Constraint("Horizontal", 14),
    Sketcher.Constraint("Vertical", 15),
    Sketcher.Constraint("Horizontal", 29),
    Sketcher.Constraint("Horizontal", 34),
    Sketcher.Constraint("Vertical", 35),
    Sketcher.Constraint("Horizontal", 36),
    Sketcher.Constraint("Vertical", 37),
    Sketcher.Constraint("Horizontal", 38),
    Sketcher.Constraint("Horizontal", 43),
    Sketcher.Constraint("Vertical", 44),
    Sketcher.Constraint("Horizontal", 45),
    Sketcher.Constraint("Horizontal", 50),
    Sketcher.Constraint("Vertical", 51),
    Sketcher.Constraint("Horizontal", 52),
    Sketcher.Constraint("Horizontal", 57),
    Sketcher.Constraint("Vertical", 58),
    Sketcher.Constraint("Horizontal", 59),
    Sketcher.Constraint("Symmetric", 0, 2, 3, 2, -2),
    Sketcher.Constraint("PointOnObject", 5, 2, -2),
    Sketcher.Constraint("Horizontal", 9, 2, 11, 2),
    Sketcher.Constraint("Horizontal", 7, 2, 13, 2),
    Sketcher.Constraint("Horizontal", 16, 2, 29, 2),
    Sketcher.Constraint("Horizontal", 12, 2, 34, 2),
    Sketcher.Constraint("Horizontal", 29, 2, 35, 2),
    Sketcher.Constraint("Horizontal", 39, 2, 51, 2),
    Sketcher.Constraint("Vertical", 37, 2, 43, 2),
    Sketcher.Constraint("Equal", 0, 4),
    Sketcher.Constraint("Equal", 9, 14),
    Sketcher.Constraint("DistanceX", 2, 2, 2, 1, 6.0),
    Sketcher.Constraint("Angle", 11, Q("60.8694 deg")),
    Sketcher.Constraint("DistanceX", 0, 2, 0, 1, 2.765),
    Sketcher.Constraint("DistanceX", 7, 2, 7, 1, 0.736),
    Sketcher.Constraint("DistanceX", 9, 1, 9, 2, 0.699),
    Sketcher.Constraint("DistanceX", 34, 1, 34, 2, 1.225),
    Sketcher.Constraint("DistanceY", 37, 1, 37, 2, 1.119),
    Sketcher.Constraint("DistanceY", 6, 2, 8, 2, 13.69),
    Sketcher.Constraint("DistanceX", 30, 2, 36, 2, 1.03),
    Sketcher.Constraint("Distance", 30, 1.653),
    Sketcher.Constraint("DistanceX", 12, 1, 12, 2, 0.9386),
    Sketcher.Constraint("DistanceX", 29, 2, 29, 1, 0.9312),
    Sketcher.Constraint("DistanceX", 38, 2, 38, 1, 0.2766),
    Sketcher.Constraint("DistanceX", 50, 1, 50, 2, 0.9435),
    Sketcher.Constraint("DistanceX", 57, 1, 57, 2, 0.0148),
    Sketcher.Constraint("DistanceY", 1, 2, 1, 1, 22.2846),
    Sketcher.Constraint("DistanceY", 10, 2, 10, 1, 1.7463),
    Sketcher.Constraint("DistanceY", 15, 1, 15, 2, 2.1242),
    Sketcher.Constraint("DistanceX", -1, 1, 12, 2, 14.712),
    Sketcher.Constraint("DistanceY", 1, 2, 5, 2, 34.119),
])
pad2 = body.newObject("PartDesign::Pad", "Pad001")
pad2.Profile = sketch6
pad2.Length = 1
pad2.Reversed = True

doc.recompute()
